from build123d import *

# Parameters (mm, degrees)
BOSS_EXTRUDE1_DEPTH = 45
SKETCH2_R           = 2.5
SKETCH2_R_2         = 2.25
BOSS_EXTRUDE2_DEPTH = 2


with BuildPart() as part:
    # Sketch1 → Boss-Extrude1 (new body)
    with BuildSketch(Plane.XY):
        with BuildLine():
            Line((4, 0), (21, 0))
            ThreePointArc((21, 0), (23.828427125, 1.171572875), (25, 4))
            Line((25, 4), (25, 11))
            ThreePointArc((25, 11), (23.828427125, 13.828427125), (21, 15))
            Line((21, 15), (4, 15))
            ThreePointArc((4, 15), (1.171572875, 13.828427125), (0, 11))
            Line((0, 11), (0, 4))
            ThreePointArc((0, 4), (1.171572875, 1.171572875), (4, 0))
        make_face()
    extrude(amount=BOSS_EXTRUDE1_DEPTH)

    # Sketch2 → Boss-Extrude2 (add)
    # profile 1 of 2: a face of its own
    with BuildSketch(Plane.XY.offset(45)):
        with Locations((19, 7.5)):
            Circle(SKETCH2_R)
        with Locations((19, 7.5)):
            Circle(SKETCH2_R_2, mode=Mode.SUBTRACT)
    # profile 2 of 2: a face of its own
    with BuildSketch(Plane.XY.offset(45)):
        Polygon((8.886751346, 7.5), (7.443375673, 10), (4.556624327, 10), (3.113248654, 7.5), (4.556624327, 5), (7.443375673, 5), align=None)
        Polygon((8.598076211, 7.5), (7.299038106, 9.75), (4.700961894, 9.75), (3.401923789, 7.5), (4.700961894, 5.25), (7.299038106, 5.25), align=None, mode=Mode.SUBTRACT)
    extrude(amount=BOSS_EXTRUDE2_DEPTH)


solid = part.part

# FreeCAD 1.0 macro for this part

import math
import FreeCAD as App
import Part
import Sketcher
Q = App.Units.Quantity


def add_polygon(sketch, points):
    """Adds a closed chain of lines whose ends are joined by coincident constraints."""
    first, n = sketch.GeometryCount, len(points)
    for a, b in zip(points, points[1:] + points[:1]):
        sketch.addGeometry(Part.LineSegment(App.Vector(*a, 0), App.Vector(*b, 0)), False)
    for i in range(n):
        sketch.addConstraint(Sketcher.Constraint("Coincident", first + i, 2, first + (i + 1) % n, 1))

doc = App.newDocument("Part")
body = doc.addObject("PartDesign::Body", "Body")

sketch1 = body.newObject("Sketcher::SketchObject", "Sketch")
sketch1.AttachmentSupport = (doc.getObject("XY_Plane"), [""])
sketch1.MapMode = "FlatFace"
sketch1.addGeometry([
    Part.LineSegment(App.Vector(4, 0, 0), App.Vector(21, 0, 0)),
    Part.ArcOfCircle(Part.Circle(App.Vector(21, 4, 0), App.Vector(0, 0, 1), 4), math.radians(-90), math.radians(0)),
    Part.LineSegment(App.Vector(25, 4, 0), App.Vector(25, 11, 0)),
    Part.ArcOfCircle(Part.Circle(App.Vector(21, 11, 0), App.Vector(0, 0, 1), 4), math.radians(0), math.radians(90)),
    Part.LineSegment(App.Vector(21, 15, 0), App.Vector(4, 15, 0)),
    Part.ArcOfCircle(Part.Circle(App.Vector(4, 11, 0), App.Vector(0, 0, 1), 4), math.radians(90), math.radians(180)),
    Part.LineSegment(App.Vector(0, 11, 0), App.Vector(0, 4, 0)),
    Part.ArcOfCircle(Part.Circle(App.Vector(4, 4, 0), App.Vector(0, 0, 1), 4), math.radians(180), math.radians(270)),
], False)
sketch1.addConstraint([
    Sketcher.Constraint("Tangent", 0, 2, 1, 1),
    Sketcher.Constraint("Tangent", 1, 2, 2, 1),
    Sketcher.Constraint("Tangent", 2, 2, 3, 1),
    Sketcher.Constraint("Tangent", 3, 2, 4, 1),
    Sketcher.Constraint("Tangent", 4, 2, 5, 1),
    Sketcher.Constraint("Tangent", 5, 2, 6, 1),
    Sketcher.Constraint("Tangent", 6, 2, 7, 1),
    Sketcher.Constraint("Tangent", 7, 2, 0, 1),
    Sketcher.Constraint("Horizontal", 0),
    Sketcher.Constraint("Vertical", 2),
    Sketcher.Constraint("Horizontal", 4),
    Sketcher.Constraint("Vertical", 6),
    Sketcher.Constraint("Equal", 1, 3),
    Sketcher.Constraint("Equal", 3, 5),
    Sketcher.Constraint("Equal", 5, 7),
    Sketcher.Constraint("PointOnObject", 0, 2, -1),
    Sketcher.Constraint("PointOnObject", 5, 2, -2),
    Sketcher.Constraint("Radius", 1, 4.0),
    Sketcher.Constraint("DistanceX", 0, 1, 0, 2, 17.0),
    Sketcher.Constraint("DistanceY", 2, 1, 2, 2, 7.0),
])
pad1 = body.newObject("PartDesign::Pad", "Pad")
pad1.Profile = sketch1
pad1.Length = 45

sketch2 = body.newObject("Sketcher::SketchObject", "Sketch001")
sketch2.AttachmentSupport = (doc.getObject("XY_Plane"), [""])
sketch2.MapMode = "FlatFace"
sketch2.AttachmentOffset = App.Placement(App.Vector(0, 0, 45), App.Rotation())
sketch2.addGeometry(Part.Circle(App.Vector(19, 7.5, 0), App.Vector(0, 0, 1), 2.5), False)
sketch2.addGeometry(Part.Circle(App.Vector(19, 7.5, 0), App.Vector(0, 0, 1), 2.2), False)
add_polygon(sketch2, [(8.9, 7.5), (7.4, 10), (4.6, 10), (3.1, 7.5), (4.6, 5), (7.4, 5)])
add_polygon(sketch2, [(7.3, 9.8), (8.6, 7.5), (7.3, 5.2), (4.7, 5.2), (3.4, 7.5), (4.7, 9.8)])
sketch2.addConstraint([
    Sketcher.Constraint("Horizontal", 3),
    Sketcher.Constraint("Horizontal", 6),
    Sketcher.Constraint("Horizontal", 10),
    Sketcher.Constraint("Horizontal", 13),
    Sketcher.Constraint("Coincident", 1, 3, 0, 3),
    Sketcher.Constraint("Parallel", 2, 5),
    Sketcher.Constraint("Parallel", 4, 7),
    Sketcher.Constraint("Parallel", 5, 8),
    Sketcher.Constraint("Parallel", 7, 9),
    Sketcher.Constraint("Parallel", 8, 11),
    Sketcher.Constraint("Parallel", 9, 12),
    Sketcher.Constraint("Horizontal", 1, 3, 4, 2),
    Sketcher.Constraint("Horizontal", 4, 2, 7, 2),
    Sketcher.Constraint("Horizontal", 7, 2, 8, 2),
    Sketcher.Constraint("Horizontal", 8, 2, 11, 2),
    Sketcher.Constraint("Vertical", 3, 2, 5, 2),
    Sketcher.Constraint("Vertical", 2, 2, 6, 2),
    Sketcher.Constraint("Vertical", 10, 2, 12, 2),
    Sketcher.Constraint("Diameter", 0, 5.0),
    Sketcher.Constraint("Diameter", 1, 4.5),
    Sketcher.Constraint("Angle", 2, Q("120 deg")),
    Sketcher.Constraint("DistanceX", -1, 1, 0, 3, 19.0),
    Sketcher.Constraint("DistanceY", -1, 1, 2, 2, 10.0),
    Sketcher.Constraint("DistanceY", -1, 1, 5, 2, 5.0),
    Sketcher.Constraint("DistanceY", -1, 1, 9, 2, 5.25),
    Sketcher.Constraint("DistanceX", 3, 2, 3, 1, 2.886751),
    Sketcher.Constraint("DistanceX", 2, 2, 8, 2, 1.154701),
    Sketcher.Constraint("DistanceX", 11, 2, 3, 2, 1.154701),
    Sketcher.Constraint("DistanceX", -1, 1, 4, 2, 3.113249),
])
pad2 = body.newObject("PartDesign::Pad", "Pad001")
pad2.Profile = sketch2
pad2.Length = 2

doc.recompute()
